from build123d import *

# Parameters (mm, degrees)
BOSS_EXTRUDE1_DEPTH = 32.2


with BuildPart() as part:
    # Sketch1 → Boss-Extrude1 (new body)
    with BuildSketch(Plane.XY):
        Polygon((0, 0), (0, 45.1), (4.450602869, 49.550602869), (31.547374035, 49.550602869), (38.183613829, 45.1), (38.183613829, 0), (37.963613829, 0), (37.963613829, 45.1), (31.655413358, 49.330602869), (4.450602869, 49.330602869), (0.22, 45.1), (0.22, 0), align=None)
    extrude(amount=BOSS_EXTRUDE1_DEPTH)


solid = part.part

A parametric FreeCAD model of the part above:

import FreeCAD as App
import Part
import Sketcher
Q = App.Units.Quantity


def add_polygon(sketch, points):
    """Adds a closed chain of lines whose ends are joined by coincident constraints."""
    first, n = sketch.GeometryCount, len(points)
    for a, b in zip(points, points[1:] + points[:1]):
        sketch.addGeometry(Part.LineSegment(App.Vector(*a, 0), App.Vector(*b, 0)), False)
    for i in range(n):
        sketch.addConstraint(Sketcher.Constraint("Coincident", first + i, 2, first + (i + 1) % n, 1))

doc = App.newDocument("Part")
body = doc.addObject("PartDesign::Body", "Body")

sketch1 = body.newObject("Sketcher::SketchObject", "Sketch")
sketch1.AttachmentSupport = (doc.getObject("XY_Plane"), [""])
sketch1.MapMode = "FlatFace"
add_polygon(sketch1, [(0, 45.1), (0, 0), (0.22, 0), (0.22, 45.1), (4.45, 49.33), (31.66, 49.33), (37.96, 45.1), (37.96, 0), (38.18, 0), (38.18, 45.1), (31.55, 49.55), (4.45, 49.55)])
sketch1.addConstraint(Sketcher.Constraint("Vertical", 0))
sketch1.addConstraint(Sketcher.Constraint("Horizontal", 1))
sketch1.addConstraint(Sketcher.Constraint("Vertical", 2))
sketch1.addConstraint(Sketcher.Constraint("Horizontal", 4))
sketch1.addConstraint(Sketcher.Constraint("Vertical", 6))
sketch1.addConstraint(Sketcher.Constraint("Horizontal", 7))
sketch1.addConstraint(Sketcher.Constraint("Vertical", 8))
sketch1.addConstraint(Sketcher.Constraint("Horizontal", 10))
sketch1.addConstraint(Sketcher.Constraint("Coincident", 0, 2, -1, 1))
sketch1.addConstraint(Sketcher.Constraint("PointOnObject", 6, 2, -1))
sketch1.addConstraint(Sketcher.Constraint("Parallel", 5, 9))
sketch1.addConstraint(Sketcher.Constraint("Parallel", 3, 11))
sketch1.addConstraint(Sketcher.Constraint("Horizontal", 2, 2, 5, 2))
sketch1.addConstraint(Sketcher.Constraint("Horizontal", 5, 2, 8, 2))
sketch1.addConstraint(Sketcher.Constraint("Horizontal", 8, 2, 11, 2))
sketch1.addConstraint(Sketcher.Constraint("Vertical", 3, 2, 10, 2))
sketch1.addConstraint(Sketcher.Constraint("Equal", 1, 7))
sketch1.addConstraint(Sketcher.Constraint("Angle", 3, Q("45 deg")))
sketch1.addConstraint(Sketcher.Constraint("DistanceY", 0, 2, 0, 1, Q("45.1 mm")))
sketch1.addConstraint(Sketcher.Constraint("DistanceX", 1, 1, 1, 2, Q("0.22 mm")))
sketch1.addConstraint(Sketcher.Constraint("DistanceX", 4, 1, 4, 2, Q("27.20481 mm")))
sketch1.addConstraint(Sketcher.Constraint("DistanceX", 10, 2, 10, 1, Q("27.096771 mm")))
sketch1.addConstraint(Sketcher.Constraint("DistanceX", 4, 2, 5, 2, Q("6.3082 mm")))
pad1 = body.newObject("PartDesign::Pad", "Pad")
pad1.Profile = sketch1
pad1.Length = 32.2

doc.recompute()
